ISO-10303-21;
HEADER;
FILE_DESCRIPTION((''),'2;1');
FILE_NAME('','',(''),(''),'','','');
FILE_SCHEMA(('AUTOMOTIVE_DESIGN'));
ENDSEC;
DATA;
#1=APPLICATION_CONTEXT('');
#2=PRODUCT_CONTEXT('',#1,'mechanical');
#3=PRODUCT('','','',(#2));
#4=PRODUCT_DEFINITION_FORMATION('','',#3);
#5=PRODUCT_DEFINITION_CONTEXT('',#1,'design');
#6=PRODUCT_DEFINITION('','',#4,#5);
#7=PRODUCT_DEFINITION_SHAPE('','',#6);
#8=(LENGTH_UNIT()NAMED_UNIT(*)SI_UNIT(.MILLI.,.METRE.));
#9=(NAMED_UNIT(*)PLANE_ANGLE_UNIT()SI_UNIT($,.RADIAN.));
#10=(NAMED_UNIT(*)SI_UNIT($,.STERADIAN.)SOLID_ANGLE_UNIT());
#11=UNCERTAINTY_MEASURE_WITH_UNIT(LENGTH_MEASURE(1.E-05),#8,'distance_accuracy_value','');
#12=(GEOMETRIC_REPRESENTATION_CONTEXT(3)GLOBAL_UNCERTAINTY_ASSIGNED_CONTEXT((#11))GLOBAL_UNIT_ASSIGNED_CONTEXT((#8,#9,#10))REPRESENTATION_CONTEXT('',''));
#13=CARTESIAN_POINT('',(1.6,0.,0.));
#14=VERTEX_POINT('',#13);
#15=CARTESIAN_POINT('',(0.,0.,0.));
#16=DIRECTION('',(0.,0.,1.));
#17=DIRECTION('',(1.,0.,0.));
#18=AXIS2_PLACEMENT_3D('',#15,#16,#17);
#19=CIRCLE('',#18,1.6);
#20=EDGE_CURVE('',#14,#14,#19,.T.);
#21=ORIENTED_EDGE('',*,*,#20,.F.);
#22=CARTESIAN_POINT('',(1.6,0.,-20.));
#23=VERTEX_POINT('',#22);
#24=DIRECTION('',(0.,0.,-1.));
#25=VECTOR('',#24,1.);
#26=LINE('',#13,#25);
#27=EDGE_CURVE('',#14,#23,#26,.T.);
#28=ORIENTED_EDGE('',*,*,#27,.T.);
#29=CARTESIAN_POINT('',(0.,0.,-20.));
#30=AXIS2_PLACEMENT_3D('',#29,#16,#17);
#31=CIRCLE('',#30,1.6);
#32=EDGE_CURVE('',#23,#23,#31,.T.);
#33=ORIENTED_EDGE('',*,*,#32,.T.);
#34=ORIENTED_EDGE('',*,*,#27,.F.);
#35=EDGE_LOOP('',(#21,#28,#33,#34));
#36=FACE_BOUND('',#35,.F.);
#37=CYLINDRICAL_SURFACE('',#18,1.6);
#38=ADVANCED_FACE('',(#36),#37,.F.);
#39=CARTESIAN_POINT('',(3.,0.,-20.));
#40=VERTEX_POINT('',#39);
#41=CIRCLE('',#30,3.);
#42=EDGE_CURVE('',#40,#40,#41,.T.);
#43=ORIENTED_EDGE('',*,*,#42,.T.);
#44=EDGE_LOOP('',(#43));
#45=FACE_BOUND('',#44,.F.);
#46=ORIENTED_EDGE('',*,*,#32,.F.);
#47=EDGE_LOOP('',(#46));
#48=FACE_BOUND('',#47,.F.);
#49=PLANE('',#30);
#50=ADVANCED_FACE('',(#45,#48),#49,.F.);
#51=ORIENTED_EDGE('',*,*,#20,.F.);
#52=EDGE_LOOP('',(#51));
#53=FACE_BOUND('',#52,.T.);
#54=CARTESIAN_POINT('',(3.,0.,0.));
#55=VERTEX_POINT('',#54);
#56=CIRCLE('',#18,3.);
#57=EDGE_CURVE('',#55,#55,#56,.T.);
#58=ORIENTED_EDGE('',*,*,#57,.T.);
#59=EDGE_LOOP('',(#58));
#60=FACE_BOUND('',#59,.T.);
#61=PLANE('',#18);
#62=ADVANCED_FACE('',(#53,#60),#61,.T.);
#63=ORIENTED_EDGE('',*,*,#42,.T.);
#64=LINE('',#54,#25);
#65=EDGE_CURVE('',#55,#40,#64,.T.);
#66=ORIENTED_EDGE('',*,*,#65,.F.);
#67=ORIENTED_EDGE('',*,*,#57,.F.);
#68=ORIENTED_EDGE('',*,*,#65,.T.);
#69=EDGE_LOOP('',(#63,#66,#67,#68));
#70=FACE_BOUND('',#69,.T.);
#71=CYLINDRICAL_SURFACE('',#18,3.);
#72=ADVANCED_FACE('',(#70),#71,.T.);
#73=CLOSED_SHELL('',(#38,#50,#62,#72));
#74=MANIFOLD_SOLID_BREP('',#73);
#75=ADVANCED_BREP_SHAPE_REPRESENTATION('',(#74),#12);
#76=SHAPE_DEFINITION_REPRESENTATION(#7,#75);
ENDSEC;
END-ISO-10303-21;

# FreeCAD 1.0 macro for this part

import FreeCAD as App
import Part
import Sketcher

V = App.Vector
Q = App.Units.Quantity

doc = App.newDocument("Part")
params = doc.addObject("Spreadsheet::Sheet", "Params")
for row, (alias, value) in enumerate([
    ("sketch1_diameter", "6 mm"),
    ("sketch1_diameter2", "3.2 mm"),
    ("pad1_length", "20 mm"),
], start=1):
    params.set(f"A{row}", alias)
    params.set(f"B{row}", "=" + value)
    params.setAlias(f"B{row}", alias)

body = doc.addObject("PartDesign::Body", "Body")

# Sketch on XY plane
sketch1 = body.newObject("Sketcher::SketchObject", "Sketch")
sketch1.AttachmentSupport = (doc.getObject("XY_Plane"), [""])
sketch1.MapMode = "FlatFace"
sketch1.addGeometry([
    Part.Circle(V(0, 0, 0), V(0, 0, 1), 3),
    Part.Circle(V(0, 0, 0), V(0, 0, 1), 1.6),
], False)
sketch1.addConstraint([
    Sketcher.Constraint("Coincident", 0, 3, -1, 1),
    Sketcher.Constraint("Coincident", 1, 3, -1, 1),
    Sketcher.Constraint("Diameter", 0, Q("6 mm")),
    Sketcher.Constraint("Diameter", 1, Q("3.2 mm")),
])
sketch1.setExpression("Constraints[2]", "Params.sketch1_diameter")
sketch1.setExpression("Constraints[3]", "Params.sketch1_diameter2")
pad1 = body.newObject("PartDesign::Pad", "Pad")
pad1.Profile = sketch1
pad1.setExpression("Length", "Params.pad1_length")
pad1.Reversed = True

doc.recompute()
